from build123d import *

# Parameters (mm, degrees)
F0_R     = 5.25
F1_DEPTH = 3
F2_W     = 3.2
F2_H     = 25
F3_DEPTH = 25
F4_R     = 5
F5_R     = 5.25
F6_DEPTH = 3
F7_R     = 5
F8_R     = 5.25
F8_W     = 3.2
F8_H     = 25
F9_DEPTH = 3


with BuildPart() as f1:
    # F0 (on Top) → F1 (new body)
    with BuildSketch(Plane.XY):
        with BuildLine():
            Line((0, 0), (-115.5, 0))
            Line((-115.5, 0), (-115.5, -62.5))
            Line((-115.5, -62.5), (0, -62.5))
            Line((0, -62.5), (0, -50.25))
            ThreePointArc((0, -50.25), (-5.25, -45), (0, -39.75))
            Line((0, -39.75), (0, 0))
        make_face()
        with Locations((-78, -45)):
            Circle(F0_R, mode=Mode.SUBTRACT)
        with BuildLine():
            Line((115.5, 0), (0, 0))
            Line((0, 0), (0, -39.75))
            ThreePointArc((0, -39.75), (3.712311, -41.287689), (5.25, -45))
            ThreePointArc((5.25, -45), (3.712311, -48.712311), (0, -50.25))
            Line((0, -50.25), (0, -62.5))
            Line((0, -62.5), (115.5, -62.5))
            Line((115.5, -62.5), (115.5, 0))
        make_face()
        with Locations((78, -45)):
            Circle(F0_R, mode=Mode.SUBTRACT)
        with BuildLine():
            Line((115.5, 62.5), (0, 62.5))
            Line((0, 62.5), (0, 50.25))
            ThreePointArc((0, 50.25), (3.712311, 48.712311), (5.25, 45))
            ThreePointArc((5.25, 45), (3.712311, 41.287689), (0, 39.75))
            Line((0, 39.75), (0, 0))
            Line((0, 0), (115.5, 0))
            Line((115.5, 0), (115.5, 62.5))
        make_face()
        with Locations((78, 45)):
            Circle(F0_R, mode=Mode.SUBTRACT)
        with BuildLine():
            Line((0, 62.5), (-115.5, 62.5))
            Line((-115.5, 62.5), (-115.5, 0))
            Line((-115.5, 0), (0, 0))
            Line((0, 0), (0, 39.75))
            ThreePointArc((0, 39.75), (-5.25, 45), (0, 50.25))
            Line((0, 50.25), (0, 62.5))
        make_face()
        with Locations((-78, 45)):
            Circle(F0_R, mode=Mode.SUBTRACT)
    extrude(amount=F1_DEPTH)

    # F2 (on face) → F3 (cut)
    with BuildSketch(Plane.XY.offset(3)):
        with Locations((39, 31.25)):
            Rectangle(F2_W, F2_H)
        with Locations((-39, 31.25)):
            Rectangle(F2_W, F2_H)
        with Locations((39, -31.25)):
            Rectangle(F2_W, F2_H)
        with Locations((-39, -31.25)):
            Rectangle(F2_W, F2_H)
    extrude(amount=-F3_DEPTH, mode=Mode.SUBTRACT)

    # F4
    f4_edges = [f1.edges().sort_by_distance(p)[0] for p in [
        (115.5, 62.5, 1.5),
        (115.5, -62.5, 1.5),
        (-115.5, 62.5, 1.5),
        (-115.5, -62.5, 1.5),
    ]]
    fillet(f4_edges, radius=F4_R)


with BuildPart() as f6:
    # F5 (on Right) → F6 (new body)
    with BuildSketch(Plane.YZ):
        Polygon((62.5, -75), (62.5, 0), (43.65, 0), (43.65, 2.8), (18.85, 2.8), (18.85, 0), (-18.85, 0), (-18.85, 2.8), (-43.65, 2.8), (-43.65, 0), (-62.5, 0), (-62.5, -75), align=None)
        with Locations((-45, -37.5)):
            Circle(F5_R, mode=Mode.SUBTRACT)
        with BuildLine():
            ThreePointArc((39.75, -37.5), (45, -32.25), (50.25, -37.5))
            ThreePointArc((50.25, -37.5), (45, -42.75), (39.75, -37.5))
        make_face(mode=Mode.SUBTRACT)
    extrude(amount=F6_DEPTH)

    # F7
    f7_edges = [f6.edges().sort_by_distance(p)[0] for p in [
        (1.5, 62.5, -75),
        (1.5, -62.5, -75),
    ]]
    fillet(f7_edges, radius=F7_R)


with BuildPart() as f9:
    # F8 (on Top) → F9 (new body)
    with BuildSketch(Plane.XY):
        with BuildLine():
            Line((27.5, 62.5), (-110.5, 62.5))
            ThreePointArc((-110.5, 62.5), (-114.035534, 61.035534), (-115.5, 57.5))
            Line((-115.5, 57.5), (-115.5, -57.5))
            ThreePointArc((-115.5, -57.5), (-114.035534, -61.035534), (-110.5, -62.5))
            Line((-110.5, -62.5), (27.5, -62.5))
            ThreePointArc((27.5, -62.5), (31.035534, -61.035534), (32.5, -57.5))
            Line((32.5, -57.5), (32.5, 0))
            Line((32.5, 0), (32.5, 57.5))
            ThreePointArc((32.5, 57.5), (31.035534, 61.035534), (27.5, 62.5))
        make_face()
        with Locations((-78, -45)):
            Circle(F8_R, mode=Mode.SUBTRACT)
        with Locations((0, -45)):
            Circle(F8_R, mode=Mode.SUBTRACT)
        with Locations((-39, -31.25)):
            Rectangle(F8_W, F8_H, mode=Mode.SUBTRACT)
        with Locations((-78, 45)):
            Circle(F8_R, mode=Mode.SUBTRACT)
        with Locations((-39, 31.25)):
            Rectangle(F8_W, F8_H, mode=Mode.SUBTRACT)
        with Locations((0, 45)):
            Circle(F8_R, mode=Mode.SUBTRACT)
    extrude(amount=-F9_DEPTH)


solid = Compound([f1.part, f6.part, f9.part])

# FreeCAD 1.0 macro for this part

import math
import FreeCAD as App
import Part
import Sketcher
Q = App.Units.Quantity


def edges_at(feature, points):
    """Names of the edges that pass closest to the given points."""
    edges = feature.Shape.Edges
    near = lambda p: min(range(len(edges)), key=lambda i: edges[i].distToShape(Part.Vertex(*p))[0])
    return sorted({f"Edge{near(p) + 1}" for p in points})


def add_polygon(sketch, points):
    """Adds a closed chain of lines whose ends are joined by coincident constraints."""
    first, n = sketch.GeometryCount, len(points)
    for a, b in zip(points, points[1:] + points[:1]):
        sketch.addGeometry(Part.LineSegment(App.Vector(*a, 0), App.Vector(*b, 0)), False)
    for i in range(n):
        sketch.addConstraint(Sketcher.Constraint("Coincident", first + i, 2, first + (i + 1) % n, 1))

doc = App.newDocument("Part")
body = doc.addObject("PartDesign::Body", "Body")

# Sketch on XY plane
sketch1 = doc.addObject("Sketcher::SketchObject", "Sketch")
body.addObject(sketch1)
sketch1.AttachmentSupport = (doc.XY_Plane, [""])
sketch1.MapMode = "FlatFace"
add_polygon(sketch1, [(-115.5, -62.5), (115.5, -62.5), (115.5, 62.5), (-115.5, 62.5)])  # lines 0-3
sketch1.addGeometry(Part.Circle(App.Vector(-78, -45, 0), App.Vector(0, 0, 1), 5.25), False)  # 4
sketch1.addGeometry(Part.ArcOfCircle(Part.Circle(App.Vector(0, -45, 0), App.Vector(0, 0, 1), 5.25), math.radians(90), math.radians(270)), False)  # 5
sketch1.addGeometry(Part.ArcOfCircle(Part.Circle(App.Vector(0.000001, -44.999999, 0), App.Vector(0, 0, 1), 5.249999), math.radians(-0.000015), math.radians(90.000015)), False)  # 6
sketch1.addGeometry(Part.ArcOfCircle(Part.Circle(App.Vector(0.000001, -45.000001, 0), App.Vector(0, 0, 1), 5.249999), math.radians(-90.000015), math.radians(0.000015)), False)  # 7
sketch1.addGeometry(Part.Circle(App.Vector(78, -45, 0), App.Vector(0, 0, 1), 5.25), False)  # 8
sketch1.addGeometry(Part.Circle(App.Vector(-78, 45, 0), App.Vector(0, 0, 1), 5.25), False)  # 9
sketch1.addGeometry(Part.ArcOfCircle(Part.Circle(App.Vector(0.000001, 44.999999, 0), App.Vector(0, 0, 1), 5.249999), math.radians(-90.000015), math.radians(0.000015)), False)  # 10
sketch1.addGeometry(Part.ArcOfCircle(Part.Circle(App.Vector(0, 45, 0), App.Vector(0, 0, 1), 5.25), math.radians(90), math.radians(270)), False)  # 11
sketch1.addGeometry(Part.ArcOfCircle(Part.Circle(App.Vector(0.000001, 45.000001, 0), App.Vector(0, 0, 1), 5.249999), math.radians(-0.000015), math.radians(90.000015)), False)  # 12
sketch1.addGeometry(Part.Circle(App.Vector(78, 45, 0), App.Vector(0, 0, 1), 5.25), False)  # 13
sketch1.addConstraint([
    Sketcher.Constraint("Tangent", 5, 1, 6, 2),
    Sketcher.Constraint("Tangent", 6, 1, 7, 2),
    Sketcher.Constraint("Tangent", 7, 1, 5, 2),
    Sketcher.Constraint("Tangent", 10, 1, 11, 2),
    Sketcher.Constraint("Tangent", 11, 1, 12, 2),
    Sketcher.Constraint("Tangent", 12, 1, 10, 2),
    Sketcher.Constraint("Horizontal", 0),
    Sketcher.Constraint("Vertical", 1),
    Sketcher.Constraint("Horizontal", 2),
    Sketcher.Constraint("Vertical", 3),
    Sketcher.Constraint("Equal", 4, 5),
    Sketcher.Constraint("Equal", 7, 8),
    Sketcher.Constraint("Equal", 8, 9),
    Sketcher.Constraint("Equal", 9, 10),
    Sketcher.Constraint("Equal", 12, 13),
    Sketcher.Constraint("Symmetric", 8, 3, 9, 3, -1, 1),
    Sketcher.Constraint("Symmetric", 5, 3, 10, 3, -1, 1),
    Sketcher.Constraint("Symmetric", 4, 3, 13, 3, -1, 1),
    Sketcher.Constraint("Symmetric", 0, 2, 2, 2, -1, 1),
    Sketcher.Constraint("Symmetric", 4, 3, 8, 3, -2),
    Sketcher.Constraint("Symmetric", 6, 1, 12, 1, -1),
    Sketcher.Constraint("PointOnObject", 5, 1, -2),
    Sketcher.Constraint("PointOnObject", 7, 1, -2),
    Sketcher.Constraint("PointOnObject", 10, 1, -2),
    Sketcher.Constraint("PointOnObject", 11, 1, -2),
    Sketcher.Constraint("Horizontal", 4, 3, 5, 3),
    Sketcher.Constraint("Horizontal", 8, 3, 6, 1),
    Sketcher.Constraint("Diameter", 4, Q("10.5 mm")),
    Sketcher.Constraint("DistanceX", 0, 1, 0, 2, Q("231 mm")),
    Sketcher.Constraint("DistanceY", 1, 1, 1, 2, Q("125 mm")),
    Sketcher.Constraint("DistanceX", 4, 3, -1, 1, Q("78 mm")),
    Sketcher.Constraint("DistanceY", 4, 3, -1, 1, Q("45 mm")),
])
pad1 = doc.addObject("PartDesign::Pad", "Pad")
body.addObject(pad1)
pad1.Profile = sketch1
pad1.Length = 3

# Sketch on XY plane
sketch2 = doc.addObject("Sketcher::SketchObject", "Sketch001")
body.addObject(sketch2)
sketch2.AttachmentSupport = (doc.XY_Plane, [""])
sketch2.MapMode = "FlatFace"
sketch2.AttachmentOffset = App.Placement(App.Vector(0, 0, 3), App.Rotation())
add_polygon(sketch2, [(37.4, 43.75), (37.4, 18.75), (40.6, 18.75), (40.6, 43.75)])  # lines 0-3
add_polygon(sketch2, [(-40.6, 43.75), (-40.6, 18.75), (-37.4, 18.75), (-37.4, 43.75)])  # lines 4-7
add_polygon(sketch2, [(37.4, -18.75), (37.4, -43.75), (40.6, -43.75), (40.6, -18.75)])  # lines 8-11
add_polygon(sketch2, [(-40.6, -18.75), (-40.6, -43.75), (-37.4, -43.75), (-37.4, -18.75)])  # lines 12-15
sketch2.addConstraint([
    Sketcher.Constraint("Vertical", 0),
    Sketcher.Constraint("Horizontal", 1),
    Sketcher.Constraint("Vertical", 2),
    Sketcher.Constraint("Horizontal", 3),
    Sketcher.Constraint("Vertical", 4),
    Sketcher.Constraint("Horizontal", 5),
    Sketcher.Constraint("Vertical", 6),
    Sketcher.Constraint("Horizontal", 7),
    Sketcher.Constraint("Vertical", 8),
    Sketcher.Constraint("Horizontal", 9),
    Sketcher.Constraint("Vertical", 10),
    Sketcher.Constraint("Horizontal", 11),
    Sketcher.Constraint("Vertical", 12),
    Sketcher.Constraint("Horizontal", 13),
    Sketcher.Constraint("Vertical", 14),
    Sketcher.Constraint("Horizontal", 15),
    Sketcher.Constraint("Symmetric", 6, 2, 8, 2, -1, 1),
    Sketcher.Constraint("Symmetric", 4, 2, 10, 2, -1, 1),
    Sketcher.Constraint("Symmetric", 2, 2, 12, 2, -1, 1),
    Sketcher.Constraint("Symmetric", 0, 2, 14, 2, -1, 1),
    Sketcher.Constraint("Symmetric", 1, 2, 4, 2, -2),
    Sketcher.Constraint("Symmetric", 3, 2, 6, 2, -2),
    Sketcher.Constraint("DistanceY", 0, 2, 0, 1, Q("25 mm")),
    Sketcher.Constraint("DistanceX", 1, 1, 1, 2, Q("3.2 mm")),
    Sketcher.Constraint("DistanceX", 4, 2, 0, 2, Q("78 mm")),
    Sketcher.Constraint("DistanceY", 8, 2, 0, 2, Q("62.5 mm")),
])
pocket1 = doc.addObject("PartDesign::Pocket", "Pocket")
body.addObject(pocket1)
pocket1.Profile = sketch2
pocket1.Length = 25
doc.recompute()

fillet = doc.addObject("PartDesign::Fillet", "Fillet")
body.addObject(fillet)
fillet.Base = (pocket1, edges_at(pocket1, [
    (115.5, 62.5, 1.5),
    (115.5, -62.5, 1.5),
    (-115.5, 62.5, 1.5),
    (-115.5, -62.5, 1.5),
]))
fillet.Radius = 5
body2 = doc.addObject("PartDesign::Body", "Body001")

# Sketch on YZ plane
sketch3 = doc.addObject("Sketcher::SketchObject", "Sketch002")
body2.addObject(sketch3)
sketch3.AttachmentSupport = (doc.getObject("YZ_Plane001"), [""])
sketch3.MapMode = "FlatFace"
add_polygon(sketch3, [(62.5, -75), (62.5, 0), (43.65, 0), (43.65, 2.8), (18.85, 2.8), (18.85, 0), (-18.85, 0), (-18.85, 2.8), (-43.65, 2.8), (-43.65, 0), (-62.5, 0), (-62.5, -75)])  # lines 0-11
sketch3.addGeometry(Part.Circle(App.Vector(-45, -37.5, 0), App.Vector(0, 0, 1), 5.25), False)  # 12
sketch3.addGeometry(Part.Circle(App.Vector(45, -37.5, 0), App.Vector(0, 0, 1), 5.25), False)  # 13
sketch3.addConstraint([
    Sketcher.Constraint("Vertical", 0),
    Sketcher.Constraint("Horizontal", 1),
    Sketcher.Constraint("Vertical", 2),
    Sketcher.Constraint("Horizontal", 3),
    Sketcher.Constraint("Vertical", 4),
    Sketcher.Constraint("Horizontal", 5),
    Sketcher.Constraint("Vertical", 6),
    Sketcher.Constraint("Horizontal", 7),
    Sketcher.Constraint("Vertical", 8),
    Sketcher.Constraint("Horizontal", 9),
    Sketcher.Constraint("Vertical", 10),
    Sketcher.Constraint("Horizontal", 11),
    Sketcher.Constraint("Equal", 12, 13),
    Sketcher.Constraint("Symmetric", 4, 2, 5, 2, -1, 1),
    Sketcher.Constraint("Symmetric", 1, 2, 8, 2, -1, 1),
    Sketcher.Constraint("Symmetric", 12, 3, 13, 3, -2),
    Sketcher.Constraint("Symmetric", 0, 2, 9, 2, -2),
    Sketcher.Constraint("Horizontal", 3, 2, 6, 2),
    Sketcher.Constraint("Diameter", 12, Q("10.5 mm")),
    Sketcher.Constraint("DistanceX", 11, 1, 11, 2, Q("125 mm")),
    Sketcher.Constraint("DistanceY", 0, 1, 0, 2, Q("75 mm")),
    Sketcher.Constraint("DistanceX", 3, 2, 3, 1, Q("24.8 mm")),
    Sketcher.Constraint("DistanceX", 5, 2, 5, 1, Q("37.7 mm")),
    Sketcher.Constraint("DistanceY", 2, 1, 2, 2, Q("2.8 mm")),
    Sketcher.Constraint("DistanceX", 12, 3, -1, 1, Q("45 mm")),
    Sketcher.Constraint("DistanceY", 12, 3, -1, 1, Q("37.5 mm")),
])
pad2 = doc.addObject("PartDesign::Pad", "Pad001")
body2.addObject(pad2)
pad2.Profile = sketch3
pad2.Length = 3
doc.recompute()

fillet2 = doc.addObject("PartDesign::Fillet", "Fillet001")
body2.addObject(fillet2)
fillet2.Base = (pad2, edges_at(pad2, [(1.5, 62.5, -75), (1.5, -62.5, -75)]))
fillet2.Radius = 5
body3 = doc.addObject("PartDesign::Body", "Body002")

# Sketch on XY plane
sketch4 = doc.addObject("Sketcher::SketchObject", "Sketch003")
body3.addObject(sketch4)
sketch4.AttachmentSupport = (doc.getObject("XY_Plane002"), [""])
sketch4.MapMode = "FlatFace"
sketch4.addGeometry(Part.LineSegment(App.Vector(27.5, 62.5, 0), App.Vector(-110.5, 62.5, 0)), False)  # 0
sketch4.addGeometry(Part.ArcOfCircle(Part.Circle(App.Vector(-110.5, 57.5, 0), App.Vector(0, 0, 1), 5), math.radians(89.999996), math.radians(180.000004)), False)  # 1
sketch4.addGeometry(Part.LineSegment(App.Vector(-115.5, 57.5, 0), App.Vector(-115.5, -57.5, 0)), False)  # 2
sketch4.addGeometry(Part.ArcOfCircle(Part.Circle(App.Vector(-110.5, -57.5, 0), App.Vector(0, 0, 1), 5), math.radians(179.999996), math.radians(270.000004)), False)  # 3
sketch4.addGeometry(Part.LineSegment(App.Vector(-110.5, -62.5, 0), App.Vector(27.5, -62.5, 0)), False)  # 4
sketch4.addGeometry(Part.ArcOfCircle(Part.Circle(App.Vector(27.5, -57.5, 0), App.Vector(0, 0, 1), 5), math.radians(-90.000004), math.radians(0.000004)), False)  # 5
sketch4.addGeometry(Part.LineSegment(App.Vector(32.5, -57.5, 0), App.Vector(32.5, 57.5, 0)), False)  # 6
sketch4.addGeometry(Part.ArcOfCircle(Part.Circle(App.Vector(27.5, 57.5, 0), App.Vector(0, 0, 1), 5), math.radians(-0.000004), math.radians(90.000004)), False)  # 7
sketch4.addGeometry(Part.Circle(App.Vector(-78, -45, 0), App.Vector(0, 0, 1), 5.25), False)  # 8
add_polygon(sketch4, [(-37.4, -43.75), (-40.6, -43.75), (-40.6, -18.75), (-37.4, -18.75)])  # lines 9-12
sketch4.addGeometry(Part.Circle(App.Vector(0, -45, 0), App.Vector(0, 0, 1), 5.25), False)  # 13
sketch4.addGeometry(Part.Circle(App.Vector(-78, 45, 0), App.Vector(0, 0, 1), 5.25), False)  # 14
add_polygon(sketch4, [(-37.4, 18.75), (-40.6, 18.75), (-40.6, 43.75), (-37.4, 43.75)])  # lines 15-18
sketch4.addGeometry(Part.Circle(App.Vector(0, 45, 0), App.Vector(0, 0, 1), 5.25), False)  # 19
sketch4.addConstraint([
    Sketcher.Constraint("Tangent", 0, 2, 1, 1),
    Sketcher.Constraint("Tangent", 1, 2, 2, 1),
    Sketcher.Constraint("Tangent", 2, 2, 3, 1),
    Sketcher.Constraint("Tangent", 3, 2, 4, 1),
    Sketcher.Constraint("Tangent", 4, 2, 5, 1),
    Sketcher.Constraint("Tangent", 5, 2, 6, 1),
    Sketcher.Constraint("Tangent", 6, 2, 7, 1),
    Sketcher.Constraint("Tangent", 7, 2, 0, 1),
    Sketcher.Constraint("Horizontal", 0),
    Sketcher.Constraint("Vertical", 2),
    Sketcher.Constraint("Horizontal", 4),
    Sketcher.Constraint("Vertical", 6),
    Sketcher.Constraint("Horizontal", 9),
    Sketcher.Constraint("Vertical", 10),
    Sketcher.Constraint("Horizontal", 11),
    Sketcher.Constraint("Vertical", 12),
    Sketcher.Constraint("Horizontal", 15),
    Sketcher.Constraint("Vertical", 16),
    Sketcher.Constraint("Horizontal", 17),
    Sketcher.Constraint("Vertical", 18),
    Sketcher.Constraint("Equal", 1, 3),
    Sketcher.Constraint("Equal", 3, 5),
    Sketcher.Constraint("Equal", 5, 7),
    Sketcher.Constraint("Equal", 8, 13),
    Sketcher.Constraint("Equal", 13, 14),
    Sketcher.Constraint("Equal", 14, 19),
    Sketcher.Constraint("Symmetric", 13, 3, 19, 3, -1, 1),
    Sketcher.Constraint("Symmetric", 8, 3, 14, 3, -1),
    Sketcher.Constraint("Symmetric", 10, 2, 15, 2, -1),
    Sketcher.Constraint("Symmetric", 12, 2, 17, 2, -1),
    Sketcher.Constraint("PointOnObject", 13, 3, -2),
    Sketcher.Constraint("Horizontal", 8, 3, 13, 3),
    Sketcher.Constraint("Radius", 1, Q("5 mm")),
    Sketcher.Constraint("Diameter", 8, Q("10.5 mm")),
    Sketcher.Constraint("DistanceX", 0, 2, 0, 1, Q("138 mm")),
    Sketcher.Constraint("DistanceY", 2, 2, 2, 1, Q("115 mm")),
    Sketcher.Constraint("DistanceY", 10, 1, 10, 2, Q("25 mm")),
    Sketcher.Constraint("DistanceX", 9, 2, 9, 1, Q("3.2 mm")),
    Sketcher.Constraint("DistanceX", 8, 3, -1, 1, Q("78 mm")),
    Sketcher.Constraint("DistanceY", 8, 3, -1, 1, Q("45 mm")),
    Sketcher.Constraint("DistanceX", 1, 3, -1, 1, Q("110.5 mm")),
    Sketcher.Constraint("DistanceY", -1, 1, 1, 3, Q("57.5 mm")),
    Sketcher.Constraint("DistanceX", 9, 2, -1, 1, Q("40.6 mm")),
    Sketcher.Constraint("DistanceY", 10, 2, 15, 2, Q("37.5 mm")),
])
pad3 = doc.addObject("PartDesign::Pad", "Pad002")
body3.addObject(pad3)
pad3.Profile = sketch4
pad3.Length = 3
pad3.Reversed = True

doc.recompute()
